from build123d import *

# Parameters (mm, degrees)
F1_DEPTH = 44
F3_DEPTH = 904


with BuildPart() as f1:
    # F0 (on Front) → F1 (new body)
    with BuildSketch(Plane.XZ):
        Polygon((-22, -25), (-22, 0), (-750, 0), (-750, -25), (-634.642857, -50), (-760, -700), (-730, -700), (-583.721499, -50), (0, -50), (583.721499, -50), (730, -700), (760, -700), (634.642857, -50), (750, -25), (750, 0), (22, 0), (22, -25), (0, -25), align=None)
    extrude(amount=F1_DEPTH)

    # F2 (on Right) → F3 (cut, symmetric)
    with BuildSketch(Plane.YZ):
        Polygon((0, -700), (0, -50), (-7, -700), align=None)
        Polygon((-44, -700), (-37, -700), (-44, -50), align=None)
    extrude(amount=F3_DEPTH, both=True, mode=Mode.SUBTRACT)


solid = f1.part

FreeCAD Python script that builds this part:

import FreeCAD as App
import Part
import Sketcher
from FreeCAD import Vector
Q = App.Units.Quantity

doc = App.newDocument("Part")
body = doc.addObject("PartDesign::Body", "Body")

# Sketch on XZ plane
sketch1 = doc.addObject("Sketcher::SketchObject", "Sketch")
body.addObject(sketch1)
sketch1.AttachmentSupport = (doc.XZ_Plane, [""])
sketch1.MapMode = "FlatFace"
sketch1.addGeometry([
    Part.LineSegment(Vector(-22, -25, 0), Vector(-22, 0, 0)),  # 0
    Part.LineSegment(Vector(-22, 0, 0), Vector(-750, 0, 0)),  # 1
    Part.LineSegment(Vector(-750, 0, 0), Vector(-750, -25, 0)),  # 2
    Part.LineSegment(Vector(-750, -25, 0), Vector(-634.642857, -50, 0)),  # 3
    Part.LineSegment(Vector(-634.642857, -50, 0), Vector(-760, -700, 0)),  # 4
    Part.LineSegment(Vector(-760, -700, 0), Vector(-730, -700, 0)),  # 5
    Part.LineSegment(Vector(-730, -700, 0), Vector(-583.721499, -50, 0)),  # 6
    Part.LineSegment(Vector(-583.721499, -50, 0), Vector(583.721499, -50, 0)),  # 7
    Part.LineSegment(Vector(583.721499, -50, 0), Vector(730, -700, 0)),  # 8
    Part.LineSegment(Vector(730, -700, 0), Vector(760, -700, 0)),  # 9
    Part.LineSegment(Vector(760, -700, 0), Vector(634.642857, -50, 0)),  # 10
    Part.LineSegment(Vector(634.642857, -50, 0), Vector(750, -25, 0)),  # 11
    Part.LineSegment(Vector(750, -25, 0), Vector(750, 0, 0)),  # 12
    Part.LineSegment(Vector(750, 0, 0), Vector(22, 0, 0)),  # 13
    Part.LineSegment(Vector(22, 0, 0), Vector(22, -25, 0)),  # 14
    Part.LineSegment(Vector(22, -25, 0), Vector(-22, -25, 0)),  # 15
], False)
sketch1.addConstraint([
    Sketcher.Constraint("Coincident", 0, 2, 1, 1),
    Sketcher.Constraint("Coincident", 1, 2, 2, 1),
    Sketcher.Constraint("Coincident", 2, 2, 3, 1),
    Sketcher.Constraint("Coincident", 3, 2, 4, 1),
    Sketcher.Constraint("Coincident", 4, 2, 5, 1),
    Sketcher.Constraint("Coincident", 5, 2, 6, 1),
    Sketcher.Constraint("Coincident", 6, 2, 7, 1),
    Sketcher.Constraint("Coincident", 7, 2, 8, 1),
    Sketcher.Constraint("Coincident", 8, 2, 9, 1),
    Sketcher.Constraint("Coincident", 9, 2, 10, 1),
    Sketcher.Constraint("Coincident", 10, 2, 11, 1),
    Sketcher.Constraint("Coincident", 11, 2, 12, 1),
    Sketcher.Constraint("Coincident", 12, 2, 13, 1),
    Sketcher.Constraint("Coincident", 13, 2, 14, 1),
    Sketcher.Constraint("Coincident", 14, 2, 15, 1),
    Sketcher.Constraint("Coincident", 15, 2, 0, 1),
    Sketcher.Constraint("Vertical", 0),
    Sketcher.Constraint("Horizontal", 1),
    Sketcher.Constraint("Vertical", 2),
    Sketcher.Constraint("Horizontal", 5),
    Sketcher.Constraint("Horizontal", 7),
    Sketcher.Constraint("Horizontal", 9),
    Sketcher.Constraint("Vertical", 12),
    Sketcher.Constraint("Horizontal", 13),
    Sketcher.Constraint("Vertical", 14),
    Sketcher.Constraint("Horizontal", 15),
    Sketcher.Constraint("Symmetric", 1, 2, 12, 2, -1, 1),
    Sketcher.Constraint("Symmetric", 5, 2, 8, 2, -2),
    Sketcher.Constraint("Symmetric", 3, 2, 10, 2, -2),
    Sketcher.Constraint("Symmetric", 0, 2, 13, 2, -2),
    Sketcher.Constraint("Horizontal", 3, 2, 6, 2),
    Sketcher.Constraint("Horizontal", 2, 2, 11, 2),
    Sketcher.Constraint("Horizontal", 11, 2, 14, 2),
    Sketcher.Constraint("Equal", 5, 9),
    Sketcher.Constraint("Equal", 6, 8),
    Sketcher.Constraint("DistanceX", 1, 2, 1, 1, Q("728 mm")),
    Sketcher.Constraint("DistanceX", 5, 1, 5, 2, Q("30 mm")),
    Sketcher.Constraint("DistanceX", 15, 2, 15, 1, Q("44 mm")),
    Sketcher.Constraint("DistanceY", 0, 1, 0, 2, Q("25 mm")),
    Sketcher.Constraint("DistanceY", 3, 2, -1, 1, Q("50 mm")),
    Sketcher.Constraint("DistanceX", 4, 2, -1, 1, Q("760 mm")),
    Sketcher.Constraint("DistanceY", 4, 2, -1, 1, Q("700 mm")),
    Sketcher.Constraint("DistanceX", 7, 1, 7, 2, Q("1167.442998 mm")),
    Sketcher.Constraint("Distance", 3, Q("118.035039 mm")),
])
pad1 = doc.addObject("PartDesign::Pad", "Pad")
body.addObject(pad1)
pad1.Profile = sketch1
pad1.Length = 44

# Sketch on YZ plane
sketch2 = doc.addObject("Sketcher::SketchObject", "Sketch001")
body.addObject(sketch2)
sketch2.AttachmentSupport = (doc.YZ_Plane, [""])
sketch2.MapMode = "FlatFace"
sketch2.addGeometry([
    Part.LineSegment(Vector(0, -700, 0), Vector(0, -50, 0)),  # 0
    Part.LineSegment(Vector(0, -50, 0), Vector(-7, -700, 0)),  # 1
    Part.LineSegment(Vector(-7, -700, 0), Vector(0, -700, 0)),  # 2
    Part.LineSegment(Vector(-44, -700, 0), Vector(-37, -700, 0)),  # 3
    Part.LineSegment(Vector(-37, -700, 0), Vector(-44, -50, 0)),  # 4
    Part.LineSegment(Vector(-44, -50, 0), Vector(-44, -700, 0)),  # 5
], False)
sketch2.addConstraint([
    Sketcher.Constraint("Coincident", 0, 2, 1, 1),
    Sketcher.Constraint("Coincident", 1, 2, 2, 1),
    Sketcher.Constraint("Coincident", 2, 2, 0, 1),
    Sketcher.Constraint("Coincident", 3, 2, 4, 1),
    Sketcher.Constraint("Coincident", 4, 2, 5, 1),
    Sketcher.Constraint("Coincident", 5, 2, 3, 1),
    Sketcher.Constraint("Vertical", 0),
    Sketcher.Constraint("Horizontal", 2),
    Sketcher.Constraint("Horizontal", 3),
    Sketcher.Constraint("Vertical", 5),
    Sketcher.Constraint("PointOnObject", 0, 2, -2),
    Sketcher.Constraint("Horizontal", 2, 2, 3, 2),
    Sketcher.Constraint("Horizontal", 0, 2, 4, 2),
    Sketcher.Constraint("Equal", 2, 3),
    Sketcher.Constraint("DistanceX", 2, 1, 2, 2, Q("7 mm")),
    Sketcher.Constraint("DistanceY", 0, 1, 0, 2, Q("650 mm")),
    Sketcher.Constraint("DistanceY", 0, 2, -1, 1, Q("50 mm")),
    Sketcher.Constraint("DistanceX", 3, 2, -1, 1, Q("37 mm")),
])
pocket1 = doc.addObject("PartDesign::Pocket", "Pocket")
body.addObject(pocket1)
pocket1.Profile = sketch2
pocket1.Length = 1808
pocket1.Midplane = True

doc.recompute()
